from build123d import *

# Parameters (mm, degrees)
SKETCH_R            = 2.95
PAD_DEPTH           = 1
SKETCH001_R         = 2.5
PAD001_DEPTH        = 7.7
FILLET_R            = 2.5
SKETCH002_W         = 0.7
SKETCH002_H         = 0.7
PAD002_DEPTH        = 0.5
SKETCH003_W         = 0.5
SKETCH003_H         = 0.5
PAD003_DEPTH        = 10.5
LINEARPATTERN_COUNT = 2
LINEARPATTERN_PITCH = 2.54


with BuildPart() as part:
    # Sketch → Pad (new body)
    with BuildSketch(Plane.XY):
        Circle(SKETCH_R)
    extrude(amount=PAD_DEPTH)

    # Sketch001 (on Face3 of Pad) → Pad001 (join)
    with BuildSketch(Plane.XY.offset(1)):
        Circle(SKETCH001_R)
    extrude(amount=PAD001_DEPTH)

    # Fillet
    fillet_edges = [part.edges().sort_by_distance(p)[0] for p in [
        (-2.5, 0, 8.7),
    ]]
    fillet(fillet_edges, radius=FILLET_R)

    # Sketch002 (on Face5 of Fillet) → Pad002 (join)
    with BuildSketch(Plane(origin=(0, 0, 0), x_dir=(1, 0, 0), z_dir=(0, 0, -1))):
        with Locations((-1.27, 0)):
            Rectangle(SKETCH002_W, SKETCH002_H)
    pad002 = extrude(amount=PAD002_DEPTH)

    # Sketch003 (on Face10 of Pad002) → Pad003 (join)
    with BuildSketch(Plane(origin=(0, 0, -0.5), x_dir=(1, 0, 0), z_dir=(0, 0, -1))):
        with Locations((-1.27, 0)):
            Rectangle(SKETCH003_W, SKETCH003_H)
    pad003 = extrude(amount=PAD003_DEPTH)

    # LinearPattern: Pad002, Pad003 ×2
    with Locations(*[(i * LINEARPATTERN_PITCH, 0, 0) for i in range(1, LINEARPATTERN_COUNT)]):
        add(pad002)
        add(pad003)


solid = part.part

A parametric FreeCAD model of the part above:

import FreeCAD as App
import Part
import Sketcher
from FreeCAD import Vector
Q = App.Units.Quantity


def edges_at(feature, points):
    """Names of the edges that pass closest to the given points."""
    edges = feature.Shape.Edges
    near = lambda p: min(range(len(edges)), key=lambda i: edges[i].distToShape(Part.Vertex(*p))[0])
    return sorted({f"Edge{near(p) + 1}" for p in points})

doc = App.newDocument("Part")
body = doc.addObject("PartDesign::Body", "Body")

sketch1 = doc.addObject("Sketcher::SketchObject", "Sketch")
body.addObject(sketch1)
sketch1.AttachmentSupport = (doc.XY_Plane, [""])
sketch1.MapMode = "FlatFace"
sketch1.addGeometry(Part.Circle(Vector(0, 0, 0), Vector(0, 0, 1), 3), False)
sketch1.addConstraint(Sketcher.Constraint("Coincident", 0, 3, -1, 1))
sketch1.addConstraint(Sketcher.Constraint("Diameter", 0, Q("5.9 mm")))
pad1 = doc.addObject("PartDesign::Pad", "Pad")
body.addObject(pad1)
pad1.Profile = sketch1
pad1.Length = 1

sketch2 = doc.addObject("Sketcher::SketchObject", "Sketch001")
body.addObject(sketch2)
sketch2.AttachmentSupport = (doc.XY_Plane, [""])
sketch2.MapMode = "FlatFace"
sketch2.AttachmentOffset = App.Placement(Vector(0, 0, 1), App.Rotation())
sketch2.addGeometry(Part.Circle(Vector(0, 0, 0), Vector(0, 0, 1), 2.5), False)
sketch2.addConstraint(Sketcher.Constraint("Coincident", 0, 3, -1, 1))
sketch2.addConstraint(Sketcher.Constraint("Diameter", 0, Q("5 mm")))
pad2 = doc.addObject("PartDesign::Pad", "Pad001")
body.addObject(pad2)
pad2.Profile = sketch2
pad2.Length = 7.7
doc.recompute()

fillet = doc.addObject("PartDesign::Fillet", "Fillet")
body.addObject(fillet)
fillet.Base = (pad2, edges_at(pad2, [(-2.5, 0, 8.7)]))
fillet.Radius = 2.5

sketch3 = doc.addObject("Sketcher::SketchObject", "Sketch002")
body.addObject(sketch3)
sketch3.AttachmentSupport = (doc.XY_Plane, [""])
sketch3.MapMode = "FlatFace"
sketch3.addGeometry(Part.LineSegment(Vector(-1.6, -0.3, 0), Vector(-1.6, 0.3, 0)), False)
sketch3.addGeometry(Part.LineSegment(Vector(-1.6, 0.3, 0), Vector(-0.9, 0.3, 0)), False)
sketch3.addGeometry(Part.LineSegment(Vector(-0.9, 0.3, 0), Vector(-0.9, -0.3, 0)), False)
sketch3.addGeometry(Part.LineSegment(Vector(-0.9, -0.3, 0), Vector(-1.6, -0.3, 0)), False)
sketch3.addConstraint(Sketcher.Constraint("Coincident", 0, 2, 1, 1))
sketch3.addConstraint(Sketcher.Constraint("Coincident", 1, 2, 2, 1))
sketch3.addConstraint(Sketcher.Constraint("Coincident", 2, 2, 3, 1))
sketch3.addConstraint(Sketcher.Constraint("Coincident", 3, 2, 0, 1))
sketch3.addConstraint(Sketcher.Constraint("Vertical", 0))
sketch3.addConstraint(Sketcher.Constraint("Horizontal", 1))
sketch3.addConstraint(Sketcher.Constraint("Vertical", 2))
sketch3.addConstraint(Sketcher.Constraint("Horizontal", 3))
sketch3.addConstraint(Sketcher.Constraint("Equal", 3, 0))
sketch3.addConstraint(Sketcher.Constraint("DistanceX", 1, 1, 1, 2, Q("0.7 mm")))
sketch3.addConstraint(Sketcher.Constraint("DistanceX", 0, 2, -1, 1, Q("1.62 mm")))
sketch3.addConstraint(Sketcher.Constraint("DistanceY", -1, 1, 0, 2, Q("0.35 mm")))
pad3 = doc.addObject("PartDesign::Pad", "Pad002")
body.addObject(pad3)
pad3.Profile = sketch3
pad3.Length = 0.5
pad3.Reversed = True

sketch4 = doc.addObject("Sketcher::SketchObject", "Sketch003")
body.addObject(sketch4)
sketch4.AttachmentSupport = (doc.XY_Plane, [""])
sketch4.MapMode = "FlatFace"
sketch4.AttachmentOffset = App.Placement(Vector(0, 0, -0.5), App.Rotation())
sketch4.addGeometry(Part.LineSegment(Vector(-1.5, -0.2, 0), Vector(-1.5, 0.2, 0)), False)
sketch4.addGeometry(Part.LineSegment(Vector(-1.5, 0.2, 0), Vector(-1, 0.2, 0)), False)
sketch4.addGeometry(Part.LineSegment(Vector(-1, 0.2, 0), Vector(-1, -0.2, 0)), False)
sketch4.addGeometry(Part.LineSegment(Vector(-1, -0.2, 0), Vector(-1.5, -0.2, 0)), False)
sketch4.addConstraint(Sketcher.Constraint("Coincident", 0, 2, 1, 1))
sketch4.addConstraint(Sketcher.Constraint("Coincident", 1, 2, 2, 1))
sketch4.addConstraint(Sketcher.Constraint("Coincident", 2, 2, 3, 1))
sketch4.addConstraint(Sketcher.Constraint("Coincident", 3, 2, 0, 1))
sketch4.addConstraint(Sketcher.Constraint("Vertical", 0))
sketch4.addConstraint(Sketcher.Constraint("Horizontal", 1))
sketch4.addConstraint(Sketcher.Constraint("Vertical", 2))
sketch4.addConstraint(Sketcher.Constraint("Horizontal", 3))
sketch4.addConstraint(Sketcher.Constraint("Equal", 3, 0))
sketch4.addConstraint(Sketcher.Constraint("DistanceX", 1, 1, 1, 2, Q("0.5 mm")))
sketch4.addConstraint(Sketcher.Constraint("DistanceX", 0, 2, -1, 1, Q("1.52 mm")))
sketch4.addConstraint(Sketcher.Constraint("DistanceY", -1, 1, 0, 2, Q("0.25 mm")))
pad4 = doc.addObject("PartDesign::Pad", "Pad003")
body.addObject(pad4)
pad4.Profile = sketch4
pad4.Length = 10.5
pad4.Reversed = True
doc.recompute()

linearpattern = doc.addObject("PartDesign::LinearPattern", "LinearPattern")
body.addObject(linearpattern)
linearpattern.Originals = [pad3, pad4]
linearpattern.Direction = (doc.X_Axis, [""])
linearpattern.Mode = "offset"
linearpattern.Offset = 2.54
linearpattern.Occurrences = 2
body.Tip = linearpattern

doc.recompute()
